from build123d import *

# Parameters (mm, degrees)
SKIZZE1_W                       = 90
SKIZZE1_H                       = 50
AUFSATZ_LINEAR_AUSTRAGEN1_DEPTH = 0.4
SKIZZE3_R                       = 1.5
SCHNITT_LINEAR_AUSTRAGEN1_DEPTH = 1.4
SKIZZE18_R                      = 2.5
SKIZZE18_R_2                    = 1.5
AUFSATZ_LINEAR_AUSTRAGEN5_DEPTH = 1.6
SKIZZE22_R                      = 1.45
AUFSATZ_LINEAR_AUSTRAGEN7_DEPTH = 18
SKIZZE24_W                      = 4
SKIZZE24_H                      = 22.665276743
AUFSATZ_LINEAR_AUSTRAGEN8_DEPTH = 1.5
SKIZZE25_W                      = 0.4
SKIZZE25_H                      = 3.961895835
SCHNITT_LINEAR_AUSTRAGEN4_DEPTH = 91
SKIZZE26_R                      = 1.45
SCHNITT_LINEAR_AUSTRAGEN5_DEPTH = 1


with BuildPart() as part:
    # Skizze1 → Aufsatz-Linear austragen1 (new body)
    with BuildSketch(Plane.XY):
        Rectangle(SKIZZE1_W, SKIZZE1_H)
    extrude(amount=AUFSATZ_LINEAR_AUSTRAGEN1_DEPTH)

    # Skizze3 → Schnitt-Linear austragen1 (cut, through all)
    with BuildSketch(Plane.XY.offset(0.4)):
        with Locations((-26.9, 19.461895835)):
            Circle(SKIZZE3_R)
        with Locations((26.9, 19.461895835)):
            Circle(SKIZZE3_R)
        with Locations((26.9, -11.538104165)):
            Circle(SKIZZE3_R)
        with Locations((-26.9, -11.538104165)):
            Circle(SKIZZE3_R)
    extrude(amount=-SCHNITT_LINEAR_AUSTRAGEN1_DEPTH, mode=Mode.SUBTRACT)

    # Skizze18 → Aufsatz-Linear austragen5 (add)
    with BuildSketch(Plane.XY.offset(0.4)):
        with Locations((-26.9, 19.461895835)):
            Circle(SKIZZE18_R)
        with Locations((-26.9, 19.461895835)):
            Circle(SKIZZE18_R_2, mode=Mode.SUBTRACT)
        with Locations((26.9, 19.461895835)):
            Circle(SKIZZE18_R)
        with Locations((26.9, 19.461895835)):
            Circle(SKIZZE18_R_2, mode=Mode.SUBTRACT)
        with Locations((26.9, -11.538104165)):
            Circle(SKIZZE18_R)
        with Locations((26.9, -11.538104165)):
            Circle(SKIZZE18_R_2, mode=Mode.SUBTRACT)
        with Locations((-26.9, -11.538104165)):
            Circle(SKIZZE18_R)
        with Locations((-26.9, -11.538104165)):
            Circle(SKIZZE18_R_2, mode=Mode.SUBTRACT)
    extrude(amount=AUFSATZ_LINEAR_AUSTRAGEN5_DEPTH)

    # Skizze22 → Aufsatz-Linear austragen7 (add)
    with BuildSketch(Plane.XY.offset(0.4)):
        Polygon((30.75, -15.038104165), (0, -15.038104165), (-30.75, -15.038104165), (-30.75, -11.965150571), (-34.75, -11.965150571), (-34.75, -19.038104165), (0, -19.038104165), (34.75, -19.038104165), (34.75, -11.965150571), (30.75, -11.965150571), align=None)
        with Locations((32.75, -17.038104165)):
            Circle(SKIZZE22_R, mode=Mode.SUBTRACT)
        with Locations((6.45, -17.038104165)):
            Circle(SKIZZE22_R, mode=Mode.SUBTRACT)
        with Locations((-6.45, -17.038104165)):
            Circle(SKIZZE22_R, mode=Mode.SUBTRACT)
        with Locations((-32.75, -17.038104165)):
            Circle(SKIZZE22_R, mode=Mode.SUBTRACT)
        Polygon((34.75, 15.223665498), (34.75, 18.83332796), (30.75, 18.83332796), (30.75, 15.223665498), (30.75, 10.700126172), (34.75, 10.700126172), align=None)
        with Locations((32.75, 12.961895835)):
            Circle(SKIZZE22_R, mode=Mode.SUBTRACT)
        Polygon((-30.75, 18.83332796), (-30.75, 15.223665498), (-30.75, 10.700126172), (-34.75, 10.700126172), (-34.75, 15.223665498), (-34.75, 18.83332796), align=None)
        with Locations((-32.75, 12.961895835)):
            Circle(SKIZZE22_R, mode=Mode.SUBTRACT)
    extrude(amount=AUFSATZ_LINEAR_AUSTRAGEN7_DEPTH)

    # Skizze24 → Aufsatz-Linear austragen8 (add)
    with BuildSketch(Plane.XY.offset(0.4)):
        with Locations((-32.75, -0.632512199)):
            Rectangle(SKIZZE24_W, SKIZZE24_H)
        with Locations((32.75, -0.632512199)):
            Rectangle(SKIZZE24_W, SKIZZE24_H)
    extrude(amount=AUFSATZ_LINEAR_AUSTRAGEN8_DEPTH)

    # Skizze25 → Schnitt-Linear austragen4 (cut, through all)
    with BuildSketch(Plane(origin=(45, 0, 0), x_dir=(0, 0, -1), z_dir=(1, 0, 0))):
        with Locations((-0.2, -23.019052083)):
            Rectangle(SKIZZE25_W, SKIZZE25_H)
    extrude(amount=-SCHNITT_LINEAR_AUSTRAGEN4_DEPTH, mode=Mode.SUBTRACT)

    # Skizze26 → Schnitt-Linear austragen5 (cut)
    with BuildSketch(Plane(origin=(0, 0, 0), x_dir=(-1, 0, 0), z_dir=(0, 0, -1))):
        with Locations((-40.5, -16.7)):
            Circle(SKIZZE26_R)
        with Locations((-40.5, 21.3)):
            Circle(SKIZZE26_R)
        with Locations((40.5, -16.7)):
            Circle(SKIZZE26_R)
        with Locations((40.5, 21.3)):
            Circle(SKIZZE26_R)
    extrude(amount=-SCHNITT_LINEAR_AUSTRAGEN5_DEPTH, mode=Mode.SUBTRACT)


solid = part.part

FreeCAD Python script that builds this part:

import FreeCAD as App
import Part
import Sketcher


def add_polygon(sketch, points):
    """Adds a closed chain of lines whose ends are joined by coincident constraints."""
    first, n = sketch.GeometryCount, len(points)
    for a, b in zip(points, points[1:] + points[:1]):
        sketch.addGeometry(Part.LineSegment(App.Vector(*a, 0), App.Vector(*b, 0)), False)
    for i in range(n):
        sketch.addConstraint(Sketcher.Constraint("Coincident", first + i, 2, first + (i + 1) % n, 1))

doc = App.newDocument("Part")
body = doc.addObject("PartDesign::Body", "Body")

sketch1 = doc.addObject("Sketcher::SketchObject", "Sketch")
body.addObject(sketch1)
sketch1.AttachmentSupport = (doc.XY_Plane, [""])
sketch1.MapMode = "FlatFace"
add_polygon(sketch1, [(-45, 25), (-45, -25), (45, -25), (45, 25)])
sketch1.addConstraint([
    Sketcher.Constraint("Vertical", 0),
    Sketcher.Constraint("Horizontal", 1),
    Sketcher.Constraint("Vertical", 2),
    Sketcher.Constraint("Horizontal", 3),
    Sketcher.Constraint("Symmetric", 0, 2, 2, 2, -1, 1),
    Sketcher.Constraint("DistanceX", 1, 1, 1, 2, 90.0),
    Sketcher.Constraint("DistanceY", 0, 2, 0, 1, 50.0),
])
pad1 = doc.addObject("PartDesign::Pad", "Pad")
body.addObject(pad1)
pad1.Profile = sketch1
pad1.Length = 0.4

sketch2 = doc.addObject("Sketcher::SketchObject", "Sketch001")
body.addObject(sketch2)
sketch2.AttachmentSupport = (doc.XY_Plane, [""])
sketch2.MapMode = "FlatFace"
sketch2.AttachmentOffset = App.Placement(App.Vector(0, 0, 0.4), App.Rotation())
sketch2.addGeometry([
    Part.Circle(App.Vector(-26.9, 19.5, 0), App.Vector(0, 0, 1), 1.5),
    Part.Circle(App.Vector(26.9, 19.5, 0), App.Vector(0, 0, 1), 1.5),
    Part.Circle(App.Vector(26.9, -11.5, 0), App.Vector(0, 0, 1), 1.5),
    Part.Circle(App.Vector(-26.9, -11.5, 0), App.Vector(0, 0, 1), 1.5),
], False)
sketch2.addConstraint([
    Sketcher.Constraint("Equal", 0, 1),
    Sketcher.Constraint("Equal", 1, 2),
    Sketcher.Constraint("Equal", 2, 3),
    Sketcher.Constraint("Symmetric", 0, 3, 1, 3, -2),
    Sketcher.Constraint("Symmetric", 2, 3, 3, 3, -2),
    Sketcher.Constraint("Vertical", 1, 3, 2, 3),
    Sketcher.Constraint("Diameter", 0, 3.0),
    Sketcher.Constraint("DistanceY", 2, 3, 1, 3, 31.0),
    Sketcher.Constraint("DistanceX", 0, 3, -1, 1, 26.9),
    Sketcher.Constraint("DistanceY", -1, 1, 0, 3, 19.461896),
])
pocket1 = doc.addObject("PartDesign::Pocket", "Pocket")
body.addObject(pocket1)
pocket1.Profile = sketch2
pocket1.Type = "ThroughAll"

sketch3 = doc.addObject("Sketcher::SketchObject", "Sketch002")
body.addObject(sketch3)
sketch3.AttachmentSupport = (doc.XY_Plane, [""])
sketch3.MapMode = "FlatFace"
sketch3.AttachmentOffset = App.Placement(App.Vector(0, 0, 0.4), App.Rotation())
sketch3.addGeometry([
    Part.Circle(App.Vector(-26.9, 19.5, 0), App.Vector(0, 0, 1), 2.5),
    Part.Circle(App.Vector(-26.9, 19.5, 0), App.Vector(0, 0, 1), 1.5),
    Part.Circle(App.Vector(26.9, 19.5, 0), App.Vector(0, 0, 1), 2.5),
    Part.Circle(App.Vector(26.9, 19.5, 0), App.Vector(0, 0, 1), 1.5),
    Part.Circle(App.Vector(26.9, -11.5, 0), App.Vector(0, 0, 1), 2.5),
    Part.Circle(App.Vector(26.9, -11.5, 0), App.Vector(0, 0, 1), 1.5),
    Part.Circle(App.Vector(-26.9, -11.5, 0), App.Vector(0, 0, 1), 2.5),
    Part.Circle(App.Vector(-26.9, -11.5, 0), App.Vector(0, 0, 1), 1.5),
], False)
sketch3.addConstraint([
    Sketcher.Constraint("Coincident", 1, 3, 0, 3),
    Sketcher.Constraint("Coincident", 3, 3, 2, 3),
    Sketcher.Constraint("Coincident", 5, 3, 4, 3),
    Sketcher.Constraint("Coincident", 7, 3, 6, 3),
    Sketcher.Constraint("Equal", 0, 2),
    Sketcher.Constraint("Equal", 1, 3),
    Sketcher.Constraint("Equal", 2, 4),
    Sketcher.Constraint("Equal", 3, 5),
    Sketcher.Constraint("Equal", 4, 6),
    Sketcher.Constraint("Equal", 5, 7),
    Sketcher.Constraint("Symmetric", 0, 3, 2, 3, -2),
    Sketcher.Constraint("Symmetric", 4, 3, 6, 3, -2),
    Sketcher.Constraint("Vertical", 3, 3, 4, 3),
    Sketcher.Constraint("Diameter", 0, 5.0),
    Sketcher.Constraint("Diameter", 1, 3.0),
    Sketcher.Constraint("DistanceY", 4, 3, 2, 3, 31.0),
    Sketcher.Constraint("DistanceX", 0, 3, -1, 1, 26.9),
    Sketcher.Constraint("DistanceY", -1, 1, 0, 3, 19.461896),
])
pad2 = doc.addObject("PartDesign::Pad", "Pad001")
body.addObject(pad2)
pad2.Profile = sketch3
pad2.Length = 1.6

sketch4 = doc.addObject("Sketcher::SketchObject", "Sketch003")
body.addObject(sketch4)
sketch4.AttachmentSupport = (doc.XY_Plane, [""])
sketch4.MapMode = "FlatFace"
sketch4.AttachmentOffset = App.Placement(App.Vector(0, 0, 0.4), App.Rotation())
add_polygon(sketch4, [(30.8, -15), (-30.8, -15), (-30.8, -12), (-34.8, -12), (-34.8, -19), (34.8, -19), (34.8, -12), (30.8, -12)])
sketch4.addGeometry(Part.Circle(App.Vector(-32.8, -17, 0), App.Vector(0, 0, 1), 1.4), False)
sketch4.addGeometry(Part.Circle(App.Vector(-6.5, -17, 0), App.Vector(0, 0, 1), 1.4), False)
sketch4.addGeometry(Part.Circle(App.Vector(6.5, -17, 0), App.Vector(0, 0, 1), 1.4), False)
sketch4.addGeometry(Part.Circle(App.Vector(32.8, -17, 0), App.Vector(0, 0, 1), 1.4), False)
add_polygon(sketch4, [(34.8, 18.8), (30.8, 18.8), (30.8, 10.7), (34.8, 10.7)])
sketch4.addGeometry(Part.Circle(App.Vector(32.8, 13, 0), App.Vector(0, 0, 1), 1.4), False)
add_polygon(sketch4, [(-30.8, 10.7), (-30.8, 18.8), (-34.8, 18.8), (-34.8, 10.7)])
sketch4.addGeometry(Part.Circle(App.Vector(-32.8, 13, 0), App.Vector(0, 0, 1), 1.4), False)
sketch4.addConstraint([
    Sketcher.Constraint("Horizontal", 0),
    Sketcher.Constraint("Vertical", 1),
    Sketcher.Constraint("Horizontal", 2),
    Sketcher.Constraint("Vertical", 3),
    Sketcher.Constraint("Horizontal", 4),
    Sketcher.Constraint("Vertical", 5),
    Sketcher.Constraint("Horizontal", 6),
    Sketcher.Constraint("Vertical", 7),
    Sketcher.Constraint("Horizontal", 12),
    Sketcher.Constraint("Vertical", 13),
    Sketcher.Constraint("Horizontal", 14),
    Sketcher.Constraint("Vertical", 15),
    Sketcher.Constraint("Vertical", 17),
    Sketcher.Constraint("Horizontal", 18),
    Sketcher.Constraint("Vertical", 19),
    Sketcher.Constraint("Horizontal", 20),
    Sketcher.Constraint("Equal", 8, 9),
    Sketcher.Constraint("Equal", 9, 10),
    Sketcher.Constraint("Equal", 10, 11),
    Sketcher.Constraint("Equal", 11, 16),
    Sketcher.Constraint("Equal", 16, 21),
    Sketcher.Constraint("Symmetric", 9, 3, 10, 3, -2),
    Sketcher.Constraint("Symmetric", 8, 3, 11, 3, -2),
    Sketcher.Constraint("Symmetric", 16, 3, 21, 3, -2),
    Sketcher.Constraint("Symmetric", 2, 2, 5, 2, -2),
    Sketcher.Constraint("Symmetric", 12, 2, 17, 2, -2),
    Sketcher.Constraint("Symmetric", 14, 2, 19, 2, -2),
    Sketcher.Constraint("Horizontal", 8, 3, 9, 3),
    Sketcher.Constraint("Vertical", 11, 3, 16, 3),
    Sketcher.Constraint("Vertical", 7, 2, 12, 2),
    Sketcher.Constraint("Vertical", 5, 2, 14, 2),
    Sketcher.Constraint("Vertical", 1, 2, 17, 2),
    Sketcher.Constraint("Diameter", 8, 2.9),
    Sketcher.Constraint("DistanceX", 2, 2, 2, 1, 4.0),
    Sketcher.Constraint("DistanceX", 0, 2, 0, 1, 61.5),
    Sketcher.Constraint("DistanceY", 11, 3, 16, 3, 30.0),
    Sketcher.Constraint("DistanceX", 8, 3, 0, 2, 2.0),
    Sketcher.Constraint("DistanceY", 8, 3, 0, 2, 2.0),
    Sketcher.Constraint("DistanceY", 3, 2, 8, 3, 2.0),
    Sketcher.Constraint("DistanceX", 8, 3, 9, 3, 26.3),
    Sketcher.Constraint("DistanceY", 13, 2, 13, 1, 8.133202),
    Sketcher.Constraint("DistanceY", 1, 1, 1, 2, 3.072954),
    Sketcher.Constraint("DistanceY", 1, 2, -1, 1, 11.965151),
    Sketcher.Constraint("DistanceY", 6, 2, 12, 2, 30.798479),
])
pad3 = doc.addObject("PartDesign::Pad", "Pad002")
body.addObject(pad3)
pad3.Profile = sketch4
pad3.Length = 18

sketch5 = doc.addObject("Sketcher::SketchObject", "Sketch004")
body.addObject(sketch5)
sketch5.AttachmentSupport = (doc.XY_Plane, [""])
sketch5.MapMode = "FlatFace"
sketch5.AttachmentOffset = App.Placement(App.Vector(0, 0, 0.4), App.Rotation())
add_polygon(sketch5, [(-34.8, 10.7), (-34.8, -12), (-30.8, -12), (-30.8, 10.7)])
add_polygon(sketch5, [(30.8, 10.7), (30.8, -12), (34.8, -12), (34.8, 10.7)])
sketch5.addConstraint([
    Sketcher.Constraint("Vertical", 0),
    Sketcher.Constraint("Horizontal", 1),
    Sketcher.Constraint("Vertical", 2),
    Sketcher.Constraint("Horizontal", 3),
    Sketcher.Constraint("Vertical", 4),
    Sketcher.Constraint("Horizontal", 5),
    Sketcher.Constraint("Vertical", 6),
    Sketcher.Constraint("Horizontal", 7),
    Sketcher.Constraint("Symmetric", 1, 2, 4, 2, -2),
    Sketcher.Constraint("Symmetric", 3, 2, 6, 2, -2),
    Sketcher.Constraint("DistanceX", 1, 1, 1, 2, 4.0),
    Sketcher.Constraint("DistanceX", 1, 2, 4, 2, 61.5),
    Sketcher.Constraint("DistanceY", 0, 2, 0, 1, 22.665277),
    Sketcher.Constraint("DistanceY", 0, 2, -1, 1, 11.965151),
])
pad4 = doc.addObject("PartDesign::Pad", "Pad003")
body.addObject(pad4)
pad4.Profile = sketch5
pad4.Length = 1.5

sketch6 = doc.addObject("Sketcher::SketchObject", "Sketch005")
body.addObject(sketch6)
sketch6.AttachmentSupport = (doc.YZ_Plane, [""])
sketch6.MapMode = "FlatFace"
sketch6.AttachmentOffset = App.Placement(App.Vector(0, 0, 45), App.Rotation())
add_polygon(sketch6, [(-21.04, 0.4), (-25, 0.4), (-25, 0), (-21.04, 0)])
sketch6.addConstraint([
    Sketcher.Constraint("Horizontal", 0),
    Sketcher.Constraint("Vertical", 1),
    Sketcher.Constraint("Horizontal", 2),
    Sketcher.Constraint("Vertical", 3),
    Sketcher.Constraint("PointOnObject", 1, 2, -1),
    Sketcher.Constraint("DistanceY", 1, 2, 1, 1, 0.4),
    Sketcher.Constraint("DistanceX", 0, 2, -1, 1, 25.0),
    Sketcher.Constraint("DistanceX", 0, 2, 0, 1, 3.961896),
])
pocket2 = doc.addObject("PartDesign::Pocket", "Pocket001")
body.addObject(pocket2)
pocket2.Profile = sketch6
pocket2.Type = "ThroughAll"

sketch7 = doc.addObject("Sketcher::SketchObject", "Sketch006")
body.addObject(sketch7)
sketch7.AttachmentSupport = (doc.XY_Plane, [""])
sketch7.MapMode = "FlatFace"
sketch7.addGeometry([
    Part.Circle(App.Vector(40.5, -16.7, 0), App.Vector(0, 0, 1), 1.4),
    Part.Circle(App.Vector(40.5, 21.3, 0), App.Vector(0, 0, 1), 1.4),
    Part.Circle(App.Vector(-40.5, -16.7, 0), App.Vector(0, 0, 1), 1.4),
    Part.Circle(App.Vector(-40.5, 21.3, 0), App.Vector(0, 0, 1), 1.4),
], False)
sketch7.addConstraint([
    Sketcher.Constraint("Equal", 0, 1),
    Sketcher.Constraint("Equal", 1, 2),
    Sketcher.Constraint("Equal", 2, 3),
    Sketcher.Constraint("Symmetric", 0, 3, 2, 3, -2),
    Sketcher.Constraint("Symmetric", 1, 3, 3, 3, -2),
    Sketcher.Constraint("Vertical", 0, 3, 1, 3),
    Sketcher.Constraint("Diameter", 0, 2.9),
    Sketcher.Constraint("DistanceY", 0, 3, 1, 3, 38.0),
    Sketcher.Constraint("DistanceX", 2, 3, 0, 3, 81.0),
    Sketcher.Constraint("DistanceY", 0, 3, -1, 1, 16.7),
])
pocket3 = doc.addObject("PartDesign::Pocket", "Pocket002")
body.addObject(pocket3)
pocket3.Profile = sketch7
pocket3.Length = 1
pocket3.Reversed = True

doc.recompute()
